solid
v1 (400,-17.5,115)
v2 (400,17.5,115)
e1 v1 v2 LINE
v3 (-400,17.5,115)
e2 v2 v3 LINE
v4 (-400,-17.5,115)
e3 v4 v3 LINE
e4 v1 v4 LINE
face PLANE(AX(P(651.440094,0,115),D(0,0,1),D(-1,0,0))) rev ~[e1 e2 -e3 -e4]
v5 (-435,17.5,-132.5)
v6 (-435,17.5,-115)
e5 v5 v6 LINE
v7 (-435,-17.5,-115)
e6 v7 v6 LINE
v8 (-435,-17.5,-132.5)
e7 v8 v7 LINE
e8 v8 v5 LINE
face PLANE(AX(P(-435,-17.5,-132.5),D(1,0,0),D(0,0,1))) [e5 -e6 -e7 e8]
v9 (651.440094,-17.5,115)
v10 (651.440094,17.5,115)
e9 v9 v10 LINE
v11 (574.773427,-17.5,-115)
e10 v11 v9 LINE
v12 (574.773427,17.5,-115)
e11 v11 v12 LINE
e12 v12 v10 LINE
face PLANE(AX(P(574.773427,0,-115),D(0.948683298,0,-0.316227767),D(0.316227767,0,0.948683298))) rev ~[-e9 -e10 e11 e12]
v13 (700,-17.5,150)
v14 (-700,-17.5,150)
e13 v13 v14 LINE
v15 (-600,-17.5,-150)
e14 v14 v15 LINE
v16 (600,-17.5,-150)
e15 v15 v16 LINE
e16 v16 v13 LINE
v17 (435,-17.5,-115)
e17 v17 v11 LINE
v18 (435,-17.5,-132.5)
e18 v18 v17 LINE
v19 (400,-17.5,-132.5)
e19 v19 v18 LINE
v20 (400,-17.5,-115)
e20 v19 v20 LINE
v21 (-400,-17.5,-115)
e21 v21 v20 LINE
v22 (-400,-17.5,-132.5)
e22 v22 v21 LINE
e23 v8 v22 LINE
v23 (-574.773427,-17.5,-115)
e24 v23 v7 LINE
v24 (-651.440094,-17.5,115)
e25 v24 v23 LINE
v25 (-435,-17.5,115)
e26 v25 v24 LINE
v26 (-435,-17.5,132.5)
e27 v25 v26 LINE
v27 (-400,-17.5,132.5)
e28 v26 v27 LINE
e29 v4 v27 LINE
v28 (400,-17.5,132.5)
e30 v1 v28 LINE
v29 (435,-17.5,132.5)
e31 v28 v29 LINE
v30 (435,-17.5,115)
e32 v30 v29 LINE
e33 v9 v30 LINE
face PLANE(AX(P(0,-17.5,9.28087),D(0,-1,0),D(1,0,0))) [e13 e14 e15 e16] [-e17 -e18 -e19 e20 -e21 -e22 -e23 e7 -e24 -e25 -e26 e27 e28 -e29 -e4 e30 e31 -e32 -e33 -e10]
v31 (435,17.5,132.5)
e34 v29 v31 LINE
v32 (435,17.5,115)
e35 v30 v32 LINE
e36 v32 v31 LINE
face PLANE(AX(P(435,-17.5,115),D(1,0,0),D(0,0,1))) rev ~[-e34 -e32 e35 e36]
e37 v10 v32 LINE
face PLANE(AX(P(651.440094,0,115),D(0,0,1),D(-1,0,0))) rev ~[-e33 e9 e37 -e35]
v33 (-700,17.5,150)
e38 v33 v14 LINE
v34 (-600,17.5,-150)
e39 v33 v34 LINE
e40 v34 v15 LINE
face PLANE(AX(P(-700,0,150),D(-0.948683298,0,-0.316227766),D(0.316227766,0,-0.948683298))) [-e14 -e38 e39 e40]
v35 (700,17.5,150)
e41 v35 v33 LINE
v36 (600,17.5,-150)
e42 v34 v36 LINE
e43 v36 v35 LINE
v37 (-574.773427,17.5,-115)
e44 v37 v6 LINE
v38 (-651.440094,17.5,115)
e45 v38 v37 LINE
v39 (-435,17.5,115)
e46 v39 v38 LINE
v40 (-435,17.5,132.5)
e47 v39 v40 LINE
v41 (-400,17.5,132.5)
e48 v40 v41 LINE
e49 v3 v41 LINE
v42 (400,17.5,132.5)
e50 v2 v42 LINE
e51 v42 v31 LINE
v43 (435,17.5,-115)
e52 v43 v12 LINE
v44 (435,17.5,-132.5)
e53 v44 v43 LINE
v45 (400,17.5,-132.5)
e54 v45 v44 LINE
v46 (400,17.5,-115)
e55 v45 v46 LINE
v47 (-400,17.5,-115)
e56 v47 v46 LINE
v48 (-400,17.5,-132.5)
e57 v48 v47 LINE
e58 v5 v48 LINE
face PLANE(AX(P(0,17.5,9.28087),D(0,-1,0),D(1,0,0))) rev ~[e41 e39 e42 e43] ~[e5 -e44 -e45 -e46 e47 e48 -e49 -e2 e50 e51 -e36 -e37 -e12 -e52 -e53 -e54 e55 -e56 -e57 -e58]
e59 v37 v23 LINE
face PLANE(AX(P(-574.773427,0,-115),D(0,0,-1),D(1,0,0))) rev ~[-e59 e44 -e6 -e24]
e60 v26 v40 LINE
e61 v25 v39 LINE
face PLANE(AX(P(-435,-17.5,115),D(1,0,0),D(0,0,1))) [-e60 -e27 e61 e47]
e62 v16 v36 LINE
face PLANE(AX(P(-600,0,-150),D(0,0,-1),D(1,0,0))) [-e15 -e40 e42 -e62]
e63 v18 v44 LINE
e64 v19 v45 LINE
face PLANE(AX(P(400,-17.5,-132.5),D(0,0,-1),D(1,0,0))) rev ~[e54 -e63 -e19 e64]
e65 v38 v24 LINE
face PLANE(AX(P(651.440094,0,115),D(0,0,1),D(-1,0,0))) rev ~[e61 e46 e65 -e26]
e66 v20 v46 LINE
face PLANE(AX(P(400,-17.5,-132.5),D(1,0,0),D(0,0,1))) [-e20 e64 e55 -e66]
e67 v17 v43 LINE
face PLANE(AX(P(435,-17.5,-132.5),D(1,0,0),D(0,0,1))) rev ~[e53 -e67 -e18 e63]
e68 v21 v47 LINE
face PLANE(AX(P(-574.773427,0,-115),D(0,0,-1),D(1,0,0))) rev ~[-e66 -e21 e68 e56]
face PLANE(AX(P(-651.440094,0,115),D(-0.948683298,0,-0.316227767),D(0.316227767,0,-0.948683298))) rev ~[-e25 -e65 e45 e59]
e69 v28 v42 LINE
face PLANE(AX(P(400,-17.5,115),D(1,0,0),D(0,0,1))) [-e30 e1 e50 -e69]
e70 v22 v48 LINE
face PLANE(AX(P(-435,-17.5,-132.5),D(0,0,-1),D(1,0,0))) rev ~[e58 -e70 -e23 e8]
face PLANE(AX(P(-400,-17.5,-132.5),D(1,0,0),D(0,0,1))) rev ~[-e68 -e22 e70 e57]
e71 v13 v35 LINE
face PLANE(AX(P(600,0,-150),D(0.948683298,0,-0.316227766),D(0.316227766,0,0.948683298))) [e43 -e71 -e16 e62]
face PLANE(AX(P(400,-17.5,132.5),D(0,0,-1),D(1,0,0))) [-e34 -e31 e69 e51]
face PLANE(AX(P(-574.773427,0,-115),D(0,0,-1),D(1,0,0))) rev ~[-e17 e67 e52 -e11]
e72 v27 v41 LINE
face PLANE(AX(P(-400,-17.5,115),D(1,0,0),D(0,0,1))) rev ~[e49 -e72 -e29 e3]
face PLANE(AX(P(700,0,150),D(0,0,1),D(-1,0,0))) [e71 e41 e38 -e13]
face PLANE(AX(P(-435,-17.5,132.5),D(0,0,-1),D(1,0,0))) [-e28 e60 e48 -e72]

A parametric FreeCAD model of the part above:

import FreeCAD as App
import Part
import Sketcher
from FreeCAD import Vector


def add_polygon(sketch, points):
    """Adds a closed chain of lines whose ends are joined by coincident constraints."""
    first, n = sketch.GeometryCount, len(points)
    for a, b in zip(points, points[1:] + points[:1]):
        sketch.addGeometry(Part.LineSegment(App.Vector(*a, 0), App.Vector(*b, 0)), False)
    for i in range(n):
        sketch.addConstraint(Sketcher.Constraint("Coincident", first + i, 2, first + (i + 1) % n, 1))

doc = App.newDocument("Part")
body = doc.addObject("PartDesign::Body", "Body")

sketch1 = body.newObject("Sketcher::SketchObject", "Sketch")
sketch1.AttachmentSupport = (doc.getObject("XZ_Plane"), [""])
sketch1.MapMode = "FlatFace"
add_polygon(sketch1, [(700, 150), (-700, 150), (-600, -150), (600, -150)])
sketch1.addConstraint([
    Sketcher.Constraint("Horizontal", 0),
    Sketcher.Constraint("Horizontal", 2),
    Sketcher.Constraint("Equal", 1, 3),
    Sketcher.Constraint("DistanceX", 0, 2, 0, 1, 1400.0),
    Sketcher.Constraint("DistanceX", 2, 1, 2, 2, 1200.0),
    Sketcher.Constraint("DistanceX", 0, 2, -1, 1, 700.0),
    Sketcher.Constraint("DistanceY", -1, 1, 0, 2, 150.0),
    Sketcher.Constraint("DistanceY", 1, 2, -1, 1, 150.0),
])
pad1 = body.newObject("PartDesign::Pad", "Pad")
pad1.Profile = sketch1
pad1.Length = 35
pad1.Midplane = True

sketch2 = body.newObject("Sketcher::SketchObject", "Sketch001")
sketch2.AttachmentSupport = (doc.getObject("XZ_Plane"), [""])
sketch2.MapMode = "FlatFace"
add_polygon(sketch2, [(651, 115), (-651, 115), (-575, -115), (575, -115)])
sketch2.addConstraint([
    Sketcher.Constraint("Horizontal", 0),
    Sketcher.Constraint("Horizontal", 2),
    Sketcher.Constraint("Equal", 1, 3),
    Sketcher.Constraint("DistanceY", -1, 1, 0, 2, 115.0),
    Sketcher.Constraint("DistanceY", 1, 2, -1, 1, 115.0),
    Sketcher.Constraint("DistanceX", 0, 2, 0, 1, 1302.880188),
    Sketcher.Constraint("DistanceX", 2, 1, 2, 2, 1149.546854),
    Sketcher.Constraint("DistanceX", 0, 2, -1, 1, 651.440094),
])
pocket1 = body.newObject("PartDesign::Pocket", "Pocket")
pocket1.Profile = sketch2
pocket1.Length = 35
pocket1.Midplane = True

sketch3 = body.newObject("Sketcher::SketchObject", "Sketch002")
sketch3.AttachmentSupport = (doc.getObject("XZ_Plane"), [""])
sketch3.MapMode = "FlatFace"
sketch3.AttachmentOffset = App.Placement(Vector(0, 0, 17.5), App.Rotation())
add_polygon(sketch3, [(-435, -115), (-435, -132), (-400, -132), (-400, -115)])
sketch3.addConstraint([
    Sketcher.Constraint("Vertical", 0),
    Sketcher.Constraint("Horizontal", 1),
    Sketcher.Constraint("Vertical", 2),
    Sketcher.Constraint("Horizontal", 3),
    Sketcher.Constraint("DistanceX", 1, 1, 1, 2, 35.0),
    Sketcher.Constraint("DistanceY", 0, 2, 0, 1, 17.5),
    Sketcher.Constraint("DistanceX", 0, 2, -1, 1, 435.0),
    Sketcher.Constraint("DistanceY", 2, 2, -1, 1, 115.0),
])
pocket2 = body.newObject("PartDesign::Pocket", "Pocket001")
pocket2.Profile = sketch3
pocket2.Length = 35

sketch4 = body.newObject("Sketcher::SketchObject", "Sketch003")
sketch4.AttachmentSupport = (doc.getObject("XZ_Plane"), [""])
sketch4.MapMode = "FlatFace"
sketch4.AttachmentOffset = App.Placement(Vector(0, 0, 17.5), App.Rotation())
add_polygon(sketch4, [(400, -115), (400, -132), (435, -132), (435, -115)])
sketch4.addConstraint([
    Sketcher.Constraint("Vertical", 0),
    Sketcher.Constraint("Horizontal", 1),
    Sketcher.Constraint("Vertical", 2),
    Sketcher.Constraint("Horizontal", 3),
    Sketcher.Constraint("DistanceX", 1, 1, 1, 2, 35.0),
    Sketcher.Constraint("DistanceY", 0, 2, 0, 1, 17.5),
    Sketcher.Constraint("DistanceX", -1, 1, 0, 2, 400.0),
    Sketcher.Constraint("DistanceY", 2, 2, -1, 1, 115.0),
])
pocket3 = body.newObject("PartDesign::Pocket", "Pocket002")
pocket3.Profile = sketch4
pocket3.Length = 35

sketch5 = body.newObject("Sketcher::SketchObject", "Sketch004")
sketch5.AttachmentSupport = (doc.getObject("XZ_Plane"), [""])
sketch5.MapMode = "FlatFace"
sketch5.AttachmentOffset = App.Placement(Vector(0, 0, 17.5), App.Rotation())
add_polygon(sketch5, [(-435, 132), (-435, 115), (-400, 115), (-400, 132)])
sketch5.addConstraint([
    Sketcher.Constraint("Vertical", 0),
    Sketcher.Constraint("Horizontal", 1),
    Sketcher.Constraint("Vertical", 2),
    Sketcher.Constraint("Horizontal", 3),
    Sketcher.Constraint("DistanceX", 1, 1, 1, 2, 35.0),
    Sketcher.Constraint("DistanceY", 0, 2, 0, 1, 17.5),
    Sketcher.Constraint("DistanceX", 0, 2, -1, 1, 435.0),
    Sketcher.Constraint("DistanceY", -1, 1, 0, 2, 115.0),
])
pocket4 = body.newObject("PartDesign::Pocket", "Pocket003")
pocket4.Profile = sketch5
pocket4.Length = 35

sketch6 = body.newObject("Sketcher::SketchObject", "Sketch005")
sketch6.AttachmentSupport = (doc.getObject("XZ_Plane"), [""])
sketch6.MapMode = "FlatFace"
sketch6.AttachmentOffset = App.Placement(Vector(0, 0, 17.5), App.Rotation())
add_polygon(sketch6, [(400, 132), (400, 115), (435, 115), (435, 132)])
sketch6.addConstraint([
    Sketcher.Constraint("Vertical", 0),
    Sketcher.Constraint("Horizontal", 1),
    Sketcher.Constraint("Vertical", 2),
    Sketcher.Constraint("Horizontal", 3),
    Sketcher.Constraint("DistanceX", 1, 1, 1, 2, 35.0),
    Sketcher.Constraint("DistanceY", 0, 2, 0, 1, 17.5),
    Sketcher.Constraint("DistanceX", -1, 1, 0, 2, 400.0),
    Sketcher.Constraint("DistanceY", -1, 1, 0, 2, 115.0),
])
pocket5 = body.newObject("PartDesign::Pocket", "Pocket004")
pocket5.Profile = sketch6
pocket5.Length = 35

doc.recompute()
